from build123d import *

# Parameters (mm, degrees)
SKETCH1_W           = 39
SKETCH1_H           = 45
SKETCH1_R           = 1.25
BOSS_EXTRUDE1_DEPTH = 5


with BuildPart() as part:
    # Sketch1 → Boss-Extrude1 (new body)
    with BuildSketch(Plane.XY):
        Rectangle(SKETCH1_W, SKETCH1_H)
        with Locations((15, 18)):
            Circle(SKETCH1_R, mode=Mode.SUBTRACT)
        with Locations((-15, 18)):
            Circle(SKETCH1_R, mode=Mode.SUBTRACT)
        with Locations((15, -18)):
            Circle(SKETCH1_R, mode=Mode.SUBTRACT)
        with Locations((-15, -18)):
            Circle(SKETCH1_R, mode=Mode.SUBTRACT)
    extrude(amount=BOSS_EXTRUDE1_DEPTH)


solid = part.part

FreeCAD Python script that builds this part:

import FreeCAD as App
import Part
import Sketcher
from FreeCAD import Vector

doc = App.newDocument("Part")
body = doc.addObject("PartDesign::Body", "Body")

# Sketch on XY plane
sketch1 = body.newObject("Sketcher::SketchObject", "Sketch")
sketch1.AttachmentSupport = (doc.getObject("XY_Plane"), [""])
sketch1.MapMode = "FlatFace"
sketch1.addGeometry(Part.LineSegment(Vector(-19.5, 22.5, 0), Vector(-19.5, -22.5, 0)), False)
sketch1.addGeometry(Part.LineSegment(Vector(-19.5, -22.5, 0), Vector(19.5, -22.5, 0)), False)
sketch1.addGeometry(Part.LineSegment(Vector(19.5, -22.5, 0), Vector(19.5, 22.5, 0)), False)
sketch1.addGeometry(Part.LineSegment(Vector(19.5, 22.5, 0), Vector(-19.5, 22.5, 0)), False)
sketch1.addGeometry(Part.Circle(Vector(-15, -18, 0), Vector(0, 0, 1), 1.25), False)
sketch1.addGeometry(Part.Circle(Vector(15, -18, 0), Vector(0, 0, 1), 1.25), False)
sketch1.addGeometry(Part.Circle(Vector(-15, 18, 0), Vector(0, 0, 1), 1.25), False)
sketch1.addGeometry(Part.Circle(Vector(15, 18, 0), Vector(0, 0, 1), 1.25), False)
sketch1.addConstraint(Sketcher.Constraint("Coincident", 0, 2, 1, 1))
sketch1.addConstraint(Sketcher.Constraint("Coincident", 1, 2, 2, 1))
sketch1.addConstraint(Sketcher.Constraint("Coincident", 2, 2, 3, 1))
sketch1.addConstraint(Sketcher.Constraint("Coincident", 3, 2, 0, 1))
sketch1.addConstraint(Sketcher.Constraint("Vertical", 0))
sketch1.addConstraint(Sketcher.Constraint("Horizontal", 1))
sketch1.addConstraint(Sketcher.Constraint("Vertical", 2))
sketch1.addConstraint(Sketcher.Constraint("Horizontal", 3))
sketch1.addConstraint(Sketcher.Constraint("Equal", 4, 5))
sketch1.addConstraint(Sketcher.Constraint("Equal", 5, 6))
sketch1.addConstraint(Sketcher.Constraint("Equal", 6, 7))
sketch1.addConstraint(Sketcher.Constraint("Symmetric", 5, 3, 6, 3, -1, 1))
sketch1.addConstraint(Sketcher.Constraint("Symmetric", 4, 3, 7, 3, -1, 1))
sketch1.addConstraint(Sketcher.Constraint("Symmetric", 0, 2, 2, 2, -1, 1))
sketch1.addConstraint(Sketcher.Constraint("Symmetric", 4, 3, 5, 3, -2))
sketch1.addConstraint(Sketcher.Constraint("Diameter", 4, 2.5))
sketch1.addConstraint(Sketcher.Constraint("DistanceX", 1, 1, 1, 2, 39.0))
sketch1.addConstraint(Sketcher.Constraint("DistanceY", 0, 2, 0, 1, 45.0))
sketch1.addConstraint(Sketcher.Constraint("DistanceX", 4, 3, -1, 1, 15.0))
sketch1.addConstraint(Sketcher.Constraint("DistanceY", 4, 3, -1, 1, 18.0))
pad1 = body.newObject("PartDesign::Pad", "Pad")
pad1.Profile = sketch1
pad1.Length = 5

doc.recompute()
